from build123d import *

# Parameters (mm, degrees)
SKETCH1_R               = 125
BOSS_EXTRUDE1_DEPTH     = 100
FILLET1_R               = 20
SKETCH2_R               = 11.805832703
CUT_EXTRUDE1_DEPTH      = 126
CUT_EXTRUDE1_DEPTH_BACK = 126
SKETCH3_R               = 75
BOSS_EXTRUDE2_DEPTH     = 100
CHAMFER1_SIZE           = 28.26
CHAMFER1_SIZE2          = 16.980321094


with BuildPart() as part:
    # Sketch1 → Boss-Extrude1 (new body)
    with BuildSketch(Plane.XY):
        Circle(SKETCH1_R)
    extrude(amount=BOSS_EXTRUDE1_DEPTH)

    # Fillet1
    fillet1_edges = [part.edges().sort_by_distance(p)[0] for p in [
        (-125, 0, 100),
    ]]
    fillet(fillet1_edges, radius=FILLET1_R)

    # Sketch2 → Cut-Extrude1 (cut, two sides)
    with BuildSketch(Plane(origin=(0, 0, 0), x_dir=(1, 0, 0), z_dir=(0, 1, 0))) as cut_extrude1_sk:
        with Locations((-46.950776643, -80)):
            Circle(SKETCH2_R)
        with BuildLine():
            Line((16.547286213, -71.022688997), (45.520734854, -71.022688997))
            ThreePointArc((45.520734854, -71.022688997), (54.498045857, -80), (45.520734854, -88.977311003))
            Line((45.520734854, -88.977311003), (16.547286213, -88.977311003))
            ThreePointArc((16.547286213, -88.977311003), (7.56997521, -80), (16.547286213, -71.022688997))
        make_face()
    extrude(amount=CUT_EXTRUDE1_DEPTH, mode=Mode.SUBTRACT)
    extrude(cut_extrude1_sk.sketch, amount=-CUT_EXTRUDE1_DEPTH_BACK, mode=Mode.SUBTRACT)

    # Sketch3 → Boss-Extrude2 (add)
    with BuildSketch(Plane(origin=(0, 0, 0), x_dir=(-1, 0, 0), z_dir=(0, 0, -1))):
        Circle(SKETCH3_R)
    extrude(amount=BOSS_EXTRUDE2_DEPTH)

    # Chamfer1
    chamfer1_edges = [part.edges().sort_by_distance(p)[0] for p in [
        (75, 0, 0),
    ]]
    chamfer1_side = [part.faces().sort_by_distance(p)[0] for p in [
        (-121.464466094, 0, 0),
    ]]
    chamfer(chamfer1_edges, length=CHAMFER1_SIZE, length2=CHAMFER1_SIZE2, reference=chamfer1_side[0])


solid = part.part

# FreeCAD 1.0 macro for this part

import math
import FreeCAD as App
import Part
import Sketcher
Q = App.Units.Quantity


def edges_at(feature, points):
    """Names of the edges that pass closest to the given points."""
    edges = feature.Shape.Edges
    near = lambda p: min(range(len(edges)), key=lambda i: edges[i].distToShape(Part.Vertex(*p))[0])
    return sorted({f"Edge{near(p) + 1}" for p in points})

doc = App.newDocument("Part")
body = doc.addObject("PartDesign::Body", "Body")

# Sketch on XY plane
sketch1 = body.newObject("Sketcher::SketchObject", "Sketch")
sketch1.AttachmentSupport = (doc.getObject("XY_Plane"), [""])
sketch1.MapMode = "FlatFace"
sketch1.addGeometry(Part.Circle(App.Vector(0, 0, 0), App.Vector(0, 0, 1), 125), False)
sketch1.addConstraint([
    Sketcher.Constraint("Coincident", 0, 3, -1, 1),
    Sketcher.Constraint("Diameter", 0, Q("250 mm")),
])
pad1 = body.newObject("PartDesign::Pad", "Pad")
pad1.Profile = sketch1
pad1.Length = 100
doc.recompute()

fillet = body.newObject("PartDesign::Fillet", "Fillet")
fillet.Base = (pad1, edges_at(pad1, [(-125, 0, 100)]))
fillet.Radius = 20

# Sketch on XZ plane
sketch2 = body.newObject("Sketcher::SketchObject", "Sketch001")
sketch2.AttachmentSupport = (doc.getObject("XZ_Plane"), [""])
sketch2.MapMode = "FlatFace"
sketch2.addGeometry([
    Part.Circle(App.Vector(-47, 80, 0), App.Vector(0, 0, 1), 12),  # 0
    Part.LineSegment(App.Vector(46, 71, 0), App.Vector(17, 71, 0)),  # 1
    Part.ArcOfCircle(Part.Circle(App.Vector(17, 80, 0), App.Vector(0, 0, 1), 9), math.radians(90), math.radians(270)),  # 2
    Part.LineSegment(App.Vector(17, 89, 0), App.Vector(46, 89, 0)),  # 3
    Part.ArcOfCircle(Part.Circle(App.Vector(46, 80, 0), App.Vector(0, 0, 1), 9), math.radians(-90), math.radians(90)),  # 4
], False)
sketch2.addConstraint([
    Sketcher.Constraint("Tangent", 1, 2, 2, 2),
    Sketcher.Constraint("Tangent", 2, 1, 3, 1),
    Sketcher.Constraint("Tangent", 3, 2, 4, 2),
    Sketcher.Constraint("Tangent", 4, 1, 1, 1),
    Sketcher.Constraint("Horizontal", 1),
    Sketcher.Constraint("Horizontal", 3),
    Sketcher.Constraint("Horizontal", 0, 3, 2, 3),
    Sketcher.Constraint("DistanceY", -1, 1, 0, 3, Q("80 mm")),
    Sketcher.Constraint("Radius", 2, Q("8.977311 mm")),
    Sketcher.Constraint("Diameter", 0, Q("23.611665 mm")),
    Sketcher.Constraint("DistanceX", 1, 2, 1, 1, Q("28.973449 mm")),
    Sketcher.Constraint("DistanceX", 0, 3, 4, 3, Q("92.471511 mm")),
    Sketcher.Constraint("DistanceX", 0, 3, -1, 1, Q("46.950777 mm")),
])
pocket1 = body.newObject("PartDesign::Pocket", "Pocket")
pocket1.Profile = sketch2
pocket1.Type = "ThroughAll"
pocket1.Midplane = True

# Sketch on XY plane
sketch3 = body.newObject("Sketcher::SketchObject", "Sketch002")
sketch3.AttachmentSupport = (doc.getObject("XY_Plane"), [""])
sketch3.MapMode = "FlatFace"
sketch3.addGeometry(Part.Circle(App.Vector(0, 0, 0), App.Vector(0, 0, 1), 75), False)
sketch3.addConstraint([
    Sketcher.Constraint("Coincident", 0, 3, -1, 1),
    Sketcher.Constraint("Diameter", 0, Q("150 mm")),
])
pad2 = body.newObject("PartDesign::Pad", "Pad001")
pad2.Profile = sketch3
pad2.Length = 100
pad2.Reversed = True
doc.recompute()

chamfer = body.newObject("PartDesign::Chamfer", "Chamfer")
chamfer.Base = (pad2, edges_at(pad2, [(75, 0, 0)]))
chamfer.ChamferType = "Two distances"
chamfer.Size = 28.26
chamfer.Size2 = 16.980321

doc.recompute()
